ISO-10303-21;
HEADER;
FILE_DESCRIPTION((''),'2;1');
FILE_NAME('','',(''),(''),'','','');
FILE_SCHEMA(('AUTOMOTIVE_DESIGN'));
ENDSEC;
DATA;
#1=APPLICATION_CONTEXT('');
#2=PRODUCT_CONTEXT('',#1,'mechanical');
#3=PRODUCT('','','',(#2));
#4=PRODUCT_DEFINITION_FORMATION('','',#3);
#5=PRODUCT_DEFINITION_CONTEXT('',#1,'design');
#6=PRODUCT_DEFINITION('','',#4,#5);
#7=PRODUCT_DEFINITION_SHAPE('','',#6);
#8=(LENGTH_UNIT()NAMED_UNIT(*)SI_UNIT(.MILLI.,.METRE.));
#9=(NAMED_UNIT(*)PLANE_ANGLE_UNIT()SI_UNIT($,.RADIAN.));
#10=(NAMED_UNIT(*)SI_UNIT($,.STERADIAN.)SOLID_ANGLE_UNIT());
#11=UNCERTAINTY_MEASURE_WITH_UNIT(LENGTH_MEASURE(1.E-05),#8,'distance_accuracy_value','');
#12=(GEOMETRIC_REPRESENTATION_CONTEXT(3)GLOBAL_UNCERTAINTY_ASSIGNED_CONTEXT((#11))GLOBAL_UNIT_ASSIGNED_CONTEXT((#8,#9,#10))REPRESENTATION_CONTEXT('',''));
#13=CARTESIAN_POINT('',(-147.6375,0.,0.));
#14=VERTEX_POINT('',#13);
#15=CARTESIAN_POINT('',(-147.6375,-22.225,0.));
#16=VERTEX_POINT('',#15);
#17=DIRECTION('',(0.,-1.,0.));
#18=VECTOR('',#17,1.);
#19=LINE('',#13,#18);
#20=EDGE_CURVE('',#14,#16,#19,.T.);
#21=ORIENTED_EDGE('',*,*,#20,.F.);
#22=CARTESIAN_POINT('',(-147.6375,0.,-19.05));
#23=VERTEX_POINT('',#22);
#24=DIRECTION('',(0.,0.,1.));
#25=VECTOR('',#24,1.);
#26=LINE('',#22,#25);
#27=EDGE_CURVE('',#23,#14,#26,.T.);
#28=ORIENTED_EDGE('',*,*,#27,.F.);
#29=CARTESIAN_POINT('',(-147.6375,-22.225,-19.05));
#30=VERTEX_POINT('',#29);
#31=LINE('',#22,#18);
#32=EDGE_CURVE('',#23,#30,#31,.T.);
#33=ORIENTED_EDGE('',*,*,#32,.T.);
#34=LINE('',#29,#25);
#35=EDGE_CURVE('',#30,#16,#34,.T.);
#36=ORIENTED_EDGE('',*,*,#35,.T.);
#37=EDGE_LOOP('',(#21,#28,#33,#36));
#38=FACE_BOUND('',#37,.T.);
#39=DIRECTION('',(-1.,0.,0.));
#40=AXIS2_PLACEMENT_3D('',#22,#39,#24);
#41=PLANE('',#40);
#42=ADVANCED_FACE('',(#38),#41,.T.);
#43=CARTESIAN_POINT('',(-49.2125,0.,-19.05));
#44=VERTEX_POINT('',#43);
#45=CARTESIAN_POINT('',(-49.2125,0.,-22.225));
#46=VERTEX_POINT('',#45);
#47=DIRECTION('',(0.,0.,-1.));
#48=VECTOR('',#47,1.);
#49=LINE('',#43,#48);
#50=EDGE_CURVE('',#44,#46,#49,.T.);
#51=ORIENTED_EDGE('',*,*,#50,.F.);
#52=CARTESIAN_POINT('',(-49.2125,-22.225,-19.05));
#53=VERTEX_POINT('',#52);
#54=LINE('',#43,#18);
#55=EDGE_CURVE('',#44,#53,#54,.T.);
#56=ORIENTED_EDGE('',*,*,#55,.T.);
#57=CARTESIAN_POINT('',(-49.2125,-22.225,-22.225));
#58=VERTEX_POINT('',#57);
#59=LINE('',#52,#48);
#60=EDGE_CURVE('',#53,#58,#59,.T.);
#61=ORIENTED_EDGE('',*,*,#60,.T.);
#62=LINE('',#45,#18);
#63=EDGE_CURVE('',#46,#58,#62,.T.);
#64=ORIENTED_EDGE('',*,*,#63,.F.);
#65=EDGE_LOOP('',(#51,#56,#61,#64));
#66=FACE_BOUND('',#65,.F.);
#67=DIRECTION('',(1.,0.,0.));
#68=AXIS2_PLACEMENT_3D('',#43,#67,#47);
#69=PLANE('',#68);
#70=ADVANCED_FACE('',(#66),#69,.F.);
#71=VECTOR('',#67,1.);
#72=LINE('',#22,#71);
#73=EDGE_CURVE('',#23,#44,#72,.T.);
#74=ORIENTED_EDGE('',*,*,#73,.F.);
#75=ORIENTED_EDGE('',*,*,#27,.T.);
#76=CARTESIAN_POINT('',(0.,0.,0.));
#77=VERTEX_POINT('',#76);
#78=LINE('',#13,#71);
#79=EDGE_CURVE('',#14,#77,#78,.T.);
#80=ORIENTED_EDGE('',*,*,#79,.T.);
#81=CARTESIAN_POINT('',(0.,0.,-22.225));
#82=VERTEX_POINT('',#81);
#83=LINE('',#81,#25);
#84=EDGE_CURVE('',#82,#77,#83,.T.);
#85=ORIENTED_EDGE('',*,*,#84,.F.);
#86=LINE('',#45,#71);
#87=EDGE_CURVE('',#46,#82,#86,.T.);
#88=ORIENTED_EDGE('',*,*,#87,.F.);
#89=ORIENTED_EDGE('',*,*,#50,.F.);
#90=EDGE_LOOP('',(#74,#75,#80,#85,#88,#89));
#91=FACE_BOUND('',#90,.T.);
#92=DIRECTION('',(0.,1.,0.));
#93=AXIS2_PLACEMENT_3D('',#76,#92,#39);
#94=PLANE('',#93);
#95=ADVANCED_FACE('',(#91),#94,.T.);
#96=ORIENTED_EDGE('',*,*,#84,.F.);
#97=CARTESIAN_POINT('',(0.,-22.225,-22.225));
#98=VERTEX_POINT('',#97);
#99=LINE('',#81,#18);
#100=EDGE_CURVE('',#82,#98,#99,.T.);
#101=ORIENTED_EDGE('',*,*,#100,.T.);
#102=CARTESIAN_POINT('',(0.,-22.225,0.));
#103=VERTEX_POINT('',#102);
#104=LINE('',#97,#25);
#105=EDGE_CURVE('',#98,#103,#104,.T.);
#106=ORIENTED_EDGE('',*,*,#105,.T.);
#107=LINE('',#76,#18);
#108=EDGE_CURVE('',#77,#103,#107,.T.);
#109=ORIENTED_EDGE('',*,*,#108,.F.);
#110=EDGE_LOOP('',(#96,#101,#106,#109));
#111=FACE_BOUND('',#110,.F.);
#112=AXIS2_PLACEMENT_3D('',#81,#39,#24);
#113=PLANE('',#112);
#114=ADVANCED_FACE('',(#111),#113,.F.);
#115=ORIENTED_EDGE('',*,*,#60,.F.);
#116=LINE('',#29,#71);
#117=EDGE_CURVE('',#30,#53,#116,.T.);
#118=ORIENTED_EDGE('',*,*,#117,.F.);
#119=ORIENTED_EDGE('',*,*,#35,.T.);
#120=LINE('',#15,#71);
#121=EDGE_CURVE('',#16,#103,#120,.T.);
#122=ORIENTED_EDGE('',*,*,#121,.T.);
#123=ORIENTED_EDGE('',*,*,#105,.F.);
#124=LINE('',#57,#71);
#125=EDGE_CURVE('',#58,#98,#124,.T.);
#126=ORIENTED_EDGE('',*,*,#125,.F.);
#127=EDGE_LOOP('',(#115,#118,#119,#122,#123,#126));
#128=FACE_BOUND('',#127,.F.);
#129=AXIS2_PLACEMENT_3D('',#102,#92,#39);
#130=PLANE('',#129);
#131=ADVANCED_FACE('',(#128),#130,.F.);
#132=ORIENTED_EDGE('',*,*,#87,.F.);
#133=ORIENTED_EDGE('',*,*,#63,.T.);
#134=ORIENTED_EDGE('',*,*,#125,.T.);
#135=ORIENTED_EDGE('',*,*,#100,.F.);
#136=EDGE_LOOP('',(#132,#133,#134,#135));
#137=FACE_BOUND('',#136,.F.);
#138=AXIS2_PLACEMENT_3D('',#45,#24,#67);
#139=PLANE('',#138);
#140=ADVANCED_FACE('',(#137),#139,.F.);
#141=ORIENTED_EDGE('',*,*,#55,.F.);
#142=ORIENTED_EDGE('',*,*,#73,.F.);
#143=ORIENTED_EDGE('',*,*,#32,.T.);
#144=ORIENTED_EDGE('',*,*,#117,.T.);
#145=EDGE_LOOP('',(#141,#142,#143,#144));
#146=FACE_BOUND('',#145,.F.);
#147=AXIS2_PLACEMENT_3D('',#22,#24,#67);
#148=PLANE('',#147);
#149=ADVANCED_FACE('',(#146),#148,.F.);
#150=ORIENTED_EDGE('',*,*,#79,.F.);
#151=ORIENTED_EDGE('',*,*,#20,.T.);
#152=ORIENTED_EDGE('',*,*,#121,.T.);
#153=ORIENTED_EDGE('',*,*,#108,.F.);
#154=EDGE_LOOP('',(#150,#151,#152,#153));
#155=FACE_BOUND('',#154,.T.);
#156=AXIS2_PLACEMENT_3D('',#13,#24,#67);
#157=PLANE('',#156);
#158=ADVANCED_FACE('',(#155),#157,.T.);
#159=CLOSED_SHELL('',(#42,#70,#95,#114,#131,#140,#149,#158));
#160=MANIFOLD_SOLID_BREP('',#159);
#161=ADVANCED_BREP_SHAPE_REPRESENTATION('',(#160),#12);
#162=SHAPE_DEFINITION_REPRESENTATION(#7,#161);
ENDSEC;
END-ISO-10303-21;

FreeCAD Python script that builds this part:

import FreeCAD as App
import Part
import Sketcher
Q = App.Units.Quantity

doc = App.newDocument("Part")
body = doc.addObject("PartDesign::Body", "Body")

sketch1 = body.newObject("Sketcher::SketchObject", "Sketch")
sketch1.AttachmentSupport = (doc.getObject("XZ_Plane"), [""])
sketch1.MapMode = "FlatFace"
sketch1.addGeometry([
    Part.LineSegment(App.Vector(-49.2, -19.1, 0), App.Vector(-147.6, -19.1, 0)),
    Part.LineSegment(App.Vector(-147.6, -19.1, 0), App.Vector(-147.6, 0, 0)),
    Part.LineSegment(App.Vector(-147.6, 0, 0), App.Vector(0, 0, 0)),
    Part.LineSegment(App.Vector(0, 0, 0), App.Vector(0, -22.2, 0)),
    Part.LineSegment(App.Vector(0, -22.2, 0), App.Vector(-49.2, -22.2, 0)),
    Part.LineSegment(App.Vector(-49.2, -22.2, 0), App.Vector(-49.2, -19.1, 0)),
], False)
sketch1.addConstraint([
    Sketcher.Constraint("Coincident", 0, 2, 1, 1),
    Sketcher.Constraint("Coincident", 1, 2, 2, 1),
    Sketcher.Constraint("Coincident", 2, 2, 3, 1),
    Sketcher.Constraint("Coincident", 3, 2, 4, 1),
    Sketcher.Constraint("Coincident", 4, 2, 5, 1),
    Sketcher.Constraint("Coincident", 5, 2, 0, 1),
    Sketcher.Constraint("Horizontal", 0),
    Sketcher.Constraint("Vertical", 1),
    Sketcher.Constraint("Horizontal", 2),
    Sketcher.Constraint("Vertical", 3),
    Sketcher.Constraint("Horizontal", 4),
    Sketcher.Constraint("Vertical", 5),
    Sketcher.Constraint("Coincident", 2, 2, -1, 1),
    Sketcher.Constraint("DistanceY", 1, 1, 1, 2, Q("0.75 in")),
    Sketcher.Constraint("DistanceX", 0, 2, 0, 1, Q("3.875 in")),
    Sketcher.Constraint("DistanceX", 2, 1, 2, 2, Q("5.8125 in")),
    Sketcher.Constraint("DistanceY", 3, 2, 3, 1, Q("0.875 in")),
])
pad1 = body.newObject("PartDesign::Pad", "Pad")
pad1.Profile = sketch1
pad1.Length = Q("0.875 in")

doc.recompute()
